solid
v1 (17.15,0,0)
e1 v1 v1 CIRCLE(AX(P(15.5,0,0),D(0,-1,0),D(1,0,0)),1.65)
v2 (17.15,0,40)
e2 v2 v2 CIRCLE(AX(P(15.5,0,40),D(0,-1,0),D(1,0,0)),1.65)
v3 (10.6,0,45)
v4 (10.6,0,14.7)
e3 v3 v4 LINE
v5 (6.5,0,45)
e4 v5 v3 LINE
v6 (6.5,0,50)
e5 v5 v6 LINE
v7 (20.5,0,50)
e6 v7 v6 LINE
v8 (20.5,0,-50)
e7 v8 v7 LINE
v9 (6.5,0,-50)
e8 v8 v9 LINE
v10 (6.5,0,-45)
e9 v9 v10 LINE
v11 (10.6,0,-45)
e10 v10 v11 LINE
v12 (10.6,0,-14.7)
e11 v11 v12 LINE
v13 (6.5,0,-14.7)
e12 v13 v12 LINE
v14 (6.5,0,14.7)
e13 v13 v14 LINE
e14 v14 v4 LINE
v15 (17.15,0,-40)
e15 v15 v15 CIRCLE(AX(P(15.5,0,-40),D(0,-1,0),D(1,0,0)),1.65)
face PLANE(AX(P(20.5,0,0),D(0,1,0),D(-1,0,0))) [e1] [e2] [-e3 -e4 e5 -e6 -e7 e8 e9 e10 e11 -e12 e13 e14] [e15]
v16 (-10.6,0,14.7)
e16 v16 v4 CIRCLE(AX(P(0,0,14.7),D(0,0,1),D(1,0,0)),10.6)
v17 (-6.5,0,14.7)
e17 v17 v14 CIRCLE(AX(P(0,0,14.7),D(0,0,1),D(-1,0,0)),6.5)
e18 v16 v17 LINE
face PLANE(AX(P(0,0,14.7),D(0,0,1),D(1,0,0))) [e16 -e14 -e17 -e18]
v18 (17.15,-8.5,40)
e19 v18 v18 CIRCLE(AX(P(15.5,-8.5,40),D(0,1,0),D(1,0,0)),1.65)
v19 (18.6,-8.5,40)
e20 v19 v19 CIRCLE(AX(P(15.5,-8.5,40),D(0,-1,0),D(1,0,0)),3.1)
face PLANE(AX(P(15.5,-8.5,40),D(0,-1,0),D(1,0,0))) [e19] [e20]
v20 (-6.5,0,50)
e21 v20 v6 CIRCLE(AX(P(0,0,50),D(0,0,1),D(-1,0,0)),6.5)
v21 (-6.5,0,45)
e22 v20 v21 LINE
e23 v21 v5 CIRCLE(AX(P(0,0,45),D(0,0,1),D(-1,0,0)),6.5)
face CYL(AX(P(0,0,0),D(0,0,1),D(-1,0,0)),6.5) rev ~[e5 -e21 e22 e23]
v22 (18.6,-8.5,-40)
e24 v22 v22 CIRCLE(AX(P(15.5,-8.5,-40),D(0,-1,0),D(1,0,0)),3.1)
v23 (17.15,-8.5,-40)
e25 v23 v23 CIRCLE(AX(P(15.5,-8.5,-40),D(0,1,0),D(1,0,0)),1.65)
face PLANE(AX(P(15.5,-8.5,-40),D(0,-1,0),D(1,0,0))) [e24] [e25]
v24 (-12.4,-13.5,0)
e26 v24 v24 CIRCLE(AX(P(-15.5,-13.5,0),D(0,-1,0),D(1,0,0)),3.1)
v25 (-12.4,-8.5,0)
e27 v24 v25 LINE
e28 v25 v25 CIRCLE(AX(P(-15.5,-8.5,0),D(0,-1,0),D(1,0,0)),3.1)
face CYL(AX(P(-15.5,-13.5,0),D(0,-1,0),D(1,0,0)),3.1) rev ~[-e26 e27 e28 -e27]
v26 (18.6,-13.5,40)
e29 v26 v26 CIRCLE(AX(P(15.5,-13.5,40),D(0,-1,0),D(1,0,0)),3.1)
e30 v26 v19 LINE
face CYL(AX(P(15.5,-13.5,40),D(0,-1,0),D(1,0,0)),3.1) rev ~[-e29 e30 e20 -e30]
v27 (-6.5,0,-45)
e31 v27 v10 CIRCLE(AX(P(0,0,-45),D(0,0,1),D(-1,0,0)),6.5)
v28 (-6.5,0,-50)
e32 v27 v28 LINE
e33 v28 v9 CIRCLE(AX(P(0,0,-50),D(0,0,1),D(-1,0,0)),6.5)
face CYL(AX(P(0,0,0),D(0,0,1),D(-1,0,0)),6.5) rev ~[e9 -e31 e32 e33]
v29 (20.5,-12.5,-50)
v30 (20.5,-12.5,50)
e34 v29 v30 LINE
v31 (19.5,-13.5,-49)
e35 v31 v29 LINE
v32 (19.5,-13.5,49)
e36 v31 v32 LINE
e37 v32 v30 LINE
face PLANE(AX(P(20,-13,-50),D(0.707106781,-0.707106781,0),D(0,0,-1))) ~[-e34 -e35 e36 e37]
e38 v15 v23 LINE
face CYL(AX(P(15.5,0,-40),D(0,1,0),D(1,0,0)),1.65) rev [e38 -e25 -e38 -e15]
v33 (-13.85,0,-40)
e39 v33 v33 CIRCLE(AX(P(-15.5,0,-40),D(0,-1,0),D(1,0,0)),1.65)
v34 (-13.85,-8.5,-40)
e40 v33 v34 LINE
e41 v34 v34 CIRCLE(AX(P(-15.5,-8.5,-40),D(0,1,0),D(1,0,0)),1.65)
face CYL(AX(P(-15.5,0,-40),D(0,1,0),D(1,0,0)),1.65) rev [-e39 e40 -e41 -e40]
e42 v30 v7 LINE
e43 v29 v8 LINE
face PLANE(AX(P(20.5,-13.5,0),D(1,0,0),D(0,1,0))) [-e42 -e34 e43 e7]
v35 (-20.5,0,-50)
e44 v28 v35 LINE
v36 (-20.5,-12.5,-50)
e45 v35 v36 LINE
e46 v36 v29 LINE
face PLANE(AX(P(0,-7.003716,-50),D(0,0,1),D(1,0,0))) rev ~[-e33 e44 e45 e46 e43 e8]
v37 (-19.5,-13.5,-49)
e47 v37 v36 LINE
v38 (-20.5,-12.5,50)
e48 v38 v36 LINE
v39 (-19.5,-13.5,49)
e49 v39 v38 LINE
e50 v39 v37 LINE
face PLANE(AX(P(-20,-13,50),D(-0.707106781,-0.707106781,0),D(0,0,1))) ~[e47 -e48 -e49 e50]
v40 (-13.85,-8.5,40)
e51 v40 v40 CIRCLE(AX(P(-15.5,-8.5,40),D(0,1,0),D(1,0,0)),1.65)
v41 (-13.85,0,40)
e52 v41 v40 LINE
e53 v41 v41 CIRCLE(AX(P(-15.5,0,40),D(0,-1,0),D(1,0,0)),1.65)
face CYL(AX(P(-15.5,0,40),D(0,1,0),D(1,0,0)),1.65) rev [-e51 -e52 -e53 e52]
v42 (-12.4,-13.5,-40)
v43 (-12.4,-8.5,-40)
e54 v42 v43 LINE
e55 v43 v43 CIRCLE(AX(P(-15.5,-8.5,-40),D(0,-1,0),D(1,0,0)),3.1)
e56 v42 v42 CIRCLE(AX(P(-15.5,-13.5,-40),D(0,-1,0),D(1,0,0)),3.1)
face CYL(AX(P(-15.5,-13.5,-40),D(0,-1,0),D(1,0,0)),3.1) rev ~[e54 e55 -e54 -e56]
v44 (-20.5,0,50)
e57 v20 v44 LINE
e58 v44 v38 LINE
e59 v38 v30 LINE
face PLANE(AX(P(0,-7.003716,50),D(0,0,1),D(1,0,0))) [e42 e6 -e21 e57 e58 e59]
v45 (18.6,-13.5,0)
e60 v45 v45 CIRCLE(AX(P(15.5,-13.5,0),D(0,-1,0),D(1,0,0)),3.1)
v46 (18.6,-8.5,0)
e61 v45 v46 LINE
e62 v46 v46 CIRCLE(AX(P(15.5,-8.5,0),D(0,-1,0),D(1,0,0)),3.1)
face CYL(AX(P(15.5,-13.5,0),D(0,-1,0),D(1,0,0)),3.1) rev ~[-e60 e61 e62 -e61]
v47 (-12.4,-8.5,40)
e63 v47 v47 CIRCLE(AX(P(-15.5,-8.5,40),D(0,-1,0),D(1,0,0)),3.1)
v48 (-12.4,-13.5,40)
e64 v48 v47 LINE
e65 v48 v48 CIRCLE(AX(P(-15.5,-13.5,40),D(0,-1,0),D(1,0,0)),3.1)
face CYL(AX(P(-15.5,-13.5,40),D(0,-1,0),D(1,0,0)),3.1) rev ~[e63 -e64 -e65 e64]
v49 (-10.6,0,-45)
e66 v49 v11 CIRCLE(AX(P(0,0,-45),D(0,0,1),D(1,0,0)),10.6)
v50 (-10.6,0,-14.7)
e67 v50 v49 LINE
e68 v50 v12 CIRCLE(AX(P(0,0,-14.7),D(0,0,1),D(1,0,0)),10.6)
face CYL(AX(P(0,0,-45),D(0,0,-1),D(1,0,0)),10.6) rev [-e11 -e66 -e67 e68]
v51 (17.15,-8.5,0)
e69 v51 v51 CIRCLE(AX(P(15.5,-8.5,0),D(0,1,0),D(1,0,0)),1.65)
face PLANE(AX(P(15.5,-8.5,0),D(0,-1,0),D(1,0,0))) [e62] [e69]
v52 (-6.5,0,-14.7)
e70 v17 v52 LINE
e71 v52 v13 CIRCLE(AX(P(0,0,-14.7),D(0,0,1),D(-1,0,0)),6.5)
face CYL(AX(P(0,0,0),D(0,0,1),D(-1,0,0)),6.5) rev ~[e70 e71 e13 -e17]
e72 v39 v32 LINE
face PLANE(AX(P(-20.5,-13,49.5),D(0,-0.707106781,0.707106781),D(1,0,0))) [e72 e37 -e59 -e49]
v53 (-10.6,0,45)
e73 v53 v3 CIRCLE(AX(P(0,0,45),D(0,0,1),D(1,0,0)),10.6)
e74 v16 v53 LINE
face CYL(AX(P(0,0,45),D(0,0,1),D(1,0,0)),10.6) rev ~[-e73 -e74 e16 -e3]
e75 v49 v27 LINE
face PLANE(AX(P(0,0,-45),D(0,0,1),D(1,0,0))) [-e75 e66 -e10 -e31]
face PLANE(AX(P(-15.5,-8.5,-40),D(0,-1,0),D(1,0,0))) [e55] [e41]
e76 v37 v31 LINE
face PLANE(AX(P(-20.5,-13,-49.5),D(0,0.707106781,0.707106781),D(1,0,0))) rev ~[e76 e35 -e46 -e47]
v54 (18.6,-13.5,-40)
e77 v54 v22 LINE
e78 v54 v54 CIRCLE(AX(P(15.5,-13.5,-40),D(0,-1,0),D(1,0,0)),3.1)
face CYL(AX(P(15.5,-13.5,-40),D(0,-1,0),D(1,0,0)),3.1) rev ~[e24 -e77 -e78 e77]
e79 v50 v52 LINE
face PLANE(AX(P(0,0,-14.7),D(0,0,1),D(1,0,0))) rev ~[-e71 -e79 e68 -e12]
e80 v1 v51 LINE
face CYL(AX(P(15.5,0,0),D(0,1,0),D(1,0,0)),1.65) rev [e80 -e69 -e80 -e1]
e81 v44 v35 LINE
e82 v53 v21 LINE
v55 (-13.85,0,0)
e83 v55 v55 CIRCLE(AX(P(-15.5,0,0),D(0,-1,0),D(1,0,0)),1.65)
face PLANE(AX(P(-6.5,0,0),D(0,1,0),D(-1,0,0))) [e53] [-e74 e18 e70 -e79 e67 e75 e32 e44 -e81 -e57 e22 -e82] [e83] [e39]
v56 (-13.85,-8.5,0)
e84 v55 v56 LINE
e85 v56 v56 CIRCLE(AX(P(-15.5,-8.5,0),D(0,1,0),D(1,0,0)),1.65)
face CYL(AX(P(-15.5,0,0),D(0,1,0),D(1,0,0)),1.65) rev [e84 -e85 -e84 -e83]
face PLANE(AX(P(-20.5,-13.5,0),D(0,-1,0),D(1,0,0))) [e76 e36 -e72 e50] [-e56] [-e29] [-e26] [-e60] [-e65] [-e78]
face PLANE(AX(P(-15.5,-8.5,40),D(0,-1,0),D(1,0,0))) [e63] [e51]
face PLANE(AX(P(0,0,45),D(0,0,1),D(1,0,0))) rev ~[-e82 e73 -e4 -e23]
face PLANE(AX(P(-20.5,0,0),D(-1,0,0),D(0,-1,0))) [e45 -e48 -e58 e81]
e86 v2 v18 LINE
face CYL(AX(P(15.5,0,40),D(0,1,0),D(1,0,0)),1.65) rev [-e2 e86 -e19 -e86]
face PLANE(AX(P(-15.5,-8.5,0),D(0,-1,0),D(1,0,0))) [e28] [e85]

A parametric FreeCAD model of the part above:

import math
import FreeCAD as App
import Part
import Sketcher
from FreeCAD import Vector
Q = App.Units.Quantity


def edges_at(feature, points):
    """Names of the edges that pass closest to the given points."""
    edges = feature.Shape.Edges
    near = lambda p: min(range(len(edges)), key=lambda i: edges[i].distToShape(Part.Vertex(*p))[0])
    return sorted({f"Edge{near(p) + 1}" for p in points})

doc = App.newDocument("Part")
body = doc.addObject("PartDesign::Body", "Body")

# Sketch on XY plane
sketch1 = body.newObject("Sketcher::SketchObject", "Sketch")
sketch1.AttachmentSupport = (doc.getObject("XY_Plane"), [""])
sketch1.MapMode = "FlatFace"
sketch1.addGeometry([
    Part.LineSegment(Vector(-20, -14, 0), Vector(20, -14, 0)),  # 0
    Part.LineSegment(Vector(20, -14, 0), Vector(20, 0, 0)),  # 1
    Part.LineSegment(Vector(20, 0, 0), Vector(6, 0, 0)),  # 2
    Part.ArcOfCircle(Part.Circle(Vector(0, 0, 0), Vector(0, 0, 1), 6), math.radians(180), math.radians(360)),  # 3
    Part.LineSegment(Vector(-6, 0, 0), Vector(-20, 0, 0)),  # 4
    Part.LineSegment(Vector(-20, 0, 0), Vector(-20, -14, 0)),  # 5
], False)
sketch1.addConstraint([
    Sketcher.Constraint("Coincident", 0, 2, 1, 1),
    Sketcher.Constraint("Coincident", 1, 2, 2, 1),
    Sketcher.Constraint("Coincident", 2, 2, 3, 2),
    Sketcher.Constraint("Coincident", 3, 1, 4, 1),
    Sketcher.Constraint("Coincident", 4, 2, 5, 1),
    Sketcher.Constraint("Coincident", 5, 2, 0, 1),
    Sketcher.Constraint("Horizontal", 0),
    Sketcher.Constraint("Vertical", 1),
    Sketcher.Constraint("Horizontal", 2),
    Sketcher.Constraint("Horizontal", 4),
    Sketcher.Constraint("Vertical", 5),
    Sketcher.Constraint("Coincident", 3, 3, -1, 1),
    Sketcher.Constraint("Symmetric", 1, 2, 4, 2, -1, 1),
    Sketcher.Constraint("PointOnObject", 1, 2, -1),
    Sketcher.Constraint("Radius", 3, Q("6.5 mm")),
    Sketcher.Constraint("DistanceX", 0, 1, 0, 2, Q("41 mm")),
    Sketcher.Constraint("DistanceY", 1, 1, 1, 2, Q("13.5 mm")),
])
pad1 = body.newObject("PartDesign::Pad", "Pad")
pad1.Profile = sketch1
pad1.Length = 100
pad1.Midplane = True

# Sketch on XZ plane
sketch2 = body.newObject("Sketcher::SketchObject", "Sketch001")
sketch2.AttachmentSupport = (doc.getObject("XZ_Plane"), [""])
sketch2.MapMode = "FlatFace"
sketch2.addGeometry([
    Part.Circle(Vector(-15.5, 40, 0), Vector(0, 0, 1), 1.6),  # 0
    Part.Circle(Vector(-15.5, 0, 0), Vector(0, 0, 1), 1.6),  # 1
    Part.Circle(Vector(-15.5, -40, 0), Vector(0, 0, 1), 1.6),  # 2
    Part.Circle(Vector(15.5, -40, 0), Vector(0, 0, 1), 1.6),  # 3
    Part.Circle(Vector(15.5, 0, 0), Vector(0, 0, 1), 1.6),  # 4
    Part.Circle(Vector(15.5, 40, 0), Vector(0, 0, 1), 1.6),  # 5
], False)
sketch2.addConstraint([
    Sketcher.Constraint("Equal", 0, 1),
    Sketcher.Constraint("Equal", 1, 2),
    Sketcher.Constraint("Equal", 2, 3),
    Sketcher.Constraint("Equal", 3, 4),
    Sketcher.Constraint("Equal", 4, 5),
    Sketcher.Constraint("Symmetric", 0, 3, 3, 3, -1, 1),
    Sketcher.Constraint("Symmetric", 1, 3, 4, 3, -1, 1),
    Sketcher.Constraint("Symmetric", 2, 3, 5, 3, -1, 1),
    Sketcher.Constraint("Symmetric", 2, 3, 3, 3, -2),
    Sketcher.Constraint("PointOnObject", 1, 3, -1),
    Sketcher.Constraint("Vertical", 0, 3, 1, 3),
    Sketcher.Constraint("Diameter", 0, Q("3.3 mm")),
    Sketcher.Constraint("DistanceY", -1, 1, 0, 3, Q("40 mm")),
    Sketcher.Constraint("DistanceX", 2, 3, 3, 3, Q("31 mm")),
])
pocket1 = body.newObject("PartDesign::Pocket", "Pocket")
pocket1.Profile = sketch2
pocket1.Type = "ThroughAll"
pocket1.Reversed = True

# Sketch on XZ plane
sketch3 = body.newObject("Sketcher::SketchObject", "Sketch002")
sketch3.AttachmentSupport = (doc.getObject("XZ_Plane"), [""])
sketch3.MapMode = "FlatFace"
sketch3.AttachmentOffset = App.Placement(Vector(0, 0, 13.5), App.Rotation())
sketch3.addGeometry([
    Part.Circle(Vector(-15.5, 40, 0), Vector(0, 0, 1), 3.1),  # 0
    Part.Circle(Vector(15.5, 40, 0), Vector(0, 0, 1), 3.1),  # 1
    Part.Circle(Vector(15.5, 0, 0), Vector(0, 0, 1), 3.1),  # 2
    Part.Circle(Vector(-15.5, 0, 0), Vector(0, 0, 1), 3.1),  # 3
    Part.Circle(Vector(-15.5, -40, 0), Vector(0, 0, 1), 3.1),  # 4
    Part.Circle(Vector(15.5, -40, 0), Vector(0, 0, 1), 3.1),  # 5
], False)
sketch3.addConstraint([
    Sketcher.Constraint("Equal", 0, 1),
    Sketcher.Constraint("Equal", 1, 2),
    Sketcher.Constraint("Equal", 2, 3),
    Sketcher.Constraint("Equal", 3, 4),
    Sketcher.Constraint("Equal", 4, 5),
    Sketcher.Constraint("Symmetric", 2, 3, 3, 3, -1, 1),
    Sketcher.Constraint("Symmetric", 1, 3, 4, 3, -1, 1),
    Sketcher.Constraint("Symmetric", 0, 3, 5, 3, -1, 1),
    Sketcher.Constraint("Symmetric", 0, 3, 1, 3, -2),
    Sketcher.Constraint("PointOnObject", 2, 3, -1),
    Sketcher.Constraint("Vertical", 1, 3, 2, 3),
    Sketcher.Constraint("Diameter", 0, Q("6.2 mm")),
    Sketcher.Constraint("DistanceY", -1, 1, 0, 3, Q("40 mm")),
    Sketcher.Constraint("DistanceX", 0, 3, 1, 3, Q("31 mm")),
])
pocket2 = body.newObject("PartDesign::Pocket", "Pocket001")
pocket2.Profile = sketch3
pocket2.Length = 5

# Sketch on XY plane
sketch4 = body.newObject("Sketcher::SketchObject", "Sketch003")
sketch4.AttachmentSupport = (doc.getObject("XY_Plane"), [""])
sketch4.MapMode = "FlatFace"
sketch4.AttachmentOffset = App.Placement(Vector(0, 0, 45), App.Rotation())
sketch4.addGeometry(Part.Circle(Vector(0, 0, 0), Vector(0, 0, 1), 11), False)
sketch4.addConstraint([
    Sketcher.Constraint("Coincident", 0, 3, -1, 1),
    Sketcher.Constraint("Diameter", 0, Q("21.2 mm")),
])
pocket3 = body.newObject("PartDesign::Pocket", "Pocket002")
pocket3.Profile = sketch4
pocket3.Length = 30.3

# Sketch on XY plane
sketch5 = body.newObject("Sketcher::SketchObject", "Sketch004")
sketch5.AttachmentSupport = (doc.getObject("XY_Plane"), [""])
sketch5.MapMode = "FlatFace"
sketch5.AttachmentOffset = App.Placement(Vector(0, 0, -45), App.Rotation())
sketch5.addGeometry(Part.Circle(Vector(0, 0, 0), Vector(0, 0, 1), 11), False)
sketch5.addConstraint([
    Sketcher.Constraint("Coincident", 0, 3, -1, 1),
    Sketcher.Constraint("Diameter", 0, Q("21.2 mm")),
])
pocket4 = body.newObject("PartDesign::Pocket", "Pocket003")
pocket4.Profile = sketch5
pocket4.Length = 30.3
pocket4.Reversed = True
doc.recompute()

chamfer = body.newObject("PartDesign::Chamfer", "Chamfer")
chamfer.Base = (pocket4, edges_at(pocket4, [
    (20.5, -13.5, 0),
    (0, -13.5, 50),
    (-20.5, -13.5, 0),
    (0, -13.5, -50),
]))
chamfer.Size = 1

doc.recompute()
